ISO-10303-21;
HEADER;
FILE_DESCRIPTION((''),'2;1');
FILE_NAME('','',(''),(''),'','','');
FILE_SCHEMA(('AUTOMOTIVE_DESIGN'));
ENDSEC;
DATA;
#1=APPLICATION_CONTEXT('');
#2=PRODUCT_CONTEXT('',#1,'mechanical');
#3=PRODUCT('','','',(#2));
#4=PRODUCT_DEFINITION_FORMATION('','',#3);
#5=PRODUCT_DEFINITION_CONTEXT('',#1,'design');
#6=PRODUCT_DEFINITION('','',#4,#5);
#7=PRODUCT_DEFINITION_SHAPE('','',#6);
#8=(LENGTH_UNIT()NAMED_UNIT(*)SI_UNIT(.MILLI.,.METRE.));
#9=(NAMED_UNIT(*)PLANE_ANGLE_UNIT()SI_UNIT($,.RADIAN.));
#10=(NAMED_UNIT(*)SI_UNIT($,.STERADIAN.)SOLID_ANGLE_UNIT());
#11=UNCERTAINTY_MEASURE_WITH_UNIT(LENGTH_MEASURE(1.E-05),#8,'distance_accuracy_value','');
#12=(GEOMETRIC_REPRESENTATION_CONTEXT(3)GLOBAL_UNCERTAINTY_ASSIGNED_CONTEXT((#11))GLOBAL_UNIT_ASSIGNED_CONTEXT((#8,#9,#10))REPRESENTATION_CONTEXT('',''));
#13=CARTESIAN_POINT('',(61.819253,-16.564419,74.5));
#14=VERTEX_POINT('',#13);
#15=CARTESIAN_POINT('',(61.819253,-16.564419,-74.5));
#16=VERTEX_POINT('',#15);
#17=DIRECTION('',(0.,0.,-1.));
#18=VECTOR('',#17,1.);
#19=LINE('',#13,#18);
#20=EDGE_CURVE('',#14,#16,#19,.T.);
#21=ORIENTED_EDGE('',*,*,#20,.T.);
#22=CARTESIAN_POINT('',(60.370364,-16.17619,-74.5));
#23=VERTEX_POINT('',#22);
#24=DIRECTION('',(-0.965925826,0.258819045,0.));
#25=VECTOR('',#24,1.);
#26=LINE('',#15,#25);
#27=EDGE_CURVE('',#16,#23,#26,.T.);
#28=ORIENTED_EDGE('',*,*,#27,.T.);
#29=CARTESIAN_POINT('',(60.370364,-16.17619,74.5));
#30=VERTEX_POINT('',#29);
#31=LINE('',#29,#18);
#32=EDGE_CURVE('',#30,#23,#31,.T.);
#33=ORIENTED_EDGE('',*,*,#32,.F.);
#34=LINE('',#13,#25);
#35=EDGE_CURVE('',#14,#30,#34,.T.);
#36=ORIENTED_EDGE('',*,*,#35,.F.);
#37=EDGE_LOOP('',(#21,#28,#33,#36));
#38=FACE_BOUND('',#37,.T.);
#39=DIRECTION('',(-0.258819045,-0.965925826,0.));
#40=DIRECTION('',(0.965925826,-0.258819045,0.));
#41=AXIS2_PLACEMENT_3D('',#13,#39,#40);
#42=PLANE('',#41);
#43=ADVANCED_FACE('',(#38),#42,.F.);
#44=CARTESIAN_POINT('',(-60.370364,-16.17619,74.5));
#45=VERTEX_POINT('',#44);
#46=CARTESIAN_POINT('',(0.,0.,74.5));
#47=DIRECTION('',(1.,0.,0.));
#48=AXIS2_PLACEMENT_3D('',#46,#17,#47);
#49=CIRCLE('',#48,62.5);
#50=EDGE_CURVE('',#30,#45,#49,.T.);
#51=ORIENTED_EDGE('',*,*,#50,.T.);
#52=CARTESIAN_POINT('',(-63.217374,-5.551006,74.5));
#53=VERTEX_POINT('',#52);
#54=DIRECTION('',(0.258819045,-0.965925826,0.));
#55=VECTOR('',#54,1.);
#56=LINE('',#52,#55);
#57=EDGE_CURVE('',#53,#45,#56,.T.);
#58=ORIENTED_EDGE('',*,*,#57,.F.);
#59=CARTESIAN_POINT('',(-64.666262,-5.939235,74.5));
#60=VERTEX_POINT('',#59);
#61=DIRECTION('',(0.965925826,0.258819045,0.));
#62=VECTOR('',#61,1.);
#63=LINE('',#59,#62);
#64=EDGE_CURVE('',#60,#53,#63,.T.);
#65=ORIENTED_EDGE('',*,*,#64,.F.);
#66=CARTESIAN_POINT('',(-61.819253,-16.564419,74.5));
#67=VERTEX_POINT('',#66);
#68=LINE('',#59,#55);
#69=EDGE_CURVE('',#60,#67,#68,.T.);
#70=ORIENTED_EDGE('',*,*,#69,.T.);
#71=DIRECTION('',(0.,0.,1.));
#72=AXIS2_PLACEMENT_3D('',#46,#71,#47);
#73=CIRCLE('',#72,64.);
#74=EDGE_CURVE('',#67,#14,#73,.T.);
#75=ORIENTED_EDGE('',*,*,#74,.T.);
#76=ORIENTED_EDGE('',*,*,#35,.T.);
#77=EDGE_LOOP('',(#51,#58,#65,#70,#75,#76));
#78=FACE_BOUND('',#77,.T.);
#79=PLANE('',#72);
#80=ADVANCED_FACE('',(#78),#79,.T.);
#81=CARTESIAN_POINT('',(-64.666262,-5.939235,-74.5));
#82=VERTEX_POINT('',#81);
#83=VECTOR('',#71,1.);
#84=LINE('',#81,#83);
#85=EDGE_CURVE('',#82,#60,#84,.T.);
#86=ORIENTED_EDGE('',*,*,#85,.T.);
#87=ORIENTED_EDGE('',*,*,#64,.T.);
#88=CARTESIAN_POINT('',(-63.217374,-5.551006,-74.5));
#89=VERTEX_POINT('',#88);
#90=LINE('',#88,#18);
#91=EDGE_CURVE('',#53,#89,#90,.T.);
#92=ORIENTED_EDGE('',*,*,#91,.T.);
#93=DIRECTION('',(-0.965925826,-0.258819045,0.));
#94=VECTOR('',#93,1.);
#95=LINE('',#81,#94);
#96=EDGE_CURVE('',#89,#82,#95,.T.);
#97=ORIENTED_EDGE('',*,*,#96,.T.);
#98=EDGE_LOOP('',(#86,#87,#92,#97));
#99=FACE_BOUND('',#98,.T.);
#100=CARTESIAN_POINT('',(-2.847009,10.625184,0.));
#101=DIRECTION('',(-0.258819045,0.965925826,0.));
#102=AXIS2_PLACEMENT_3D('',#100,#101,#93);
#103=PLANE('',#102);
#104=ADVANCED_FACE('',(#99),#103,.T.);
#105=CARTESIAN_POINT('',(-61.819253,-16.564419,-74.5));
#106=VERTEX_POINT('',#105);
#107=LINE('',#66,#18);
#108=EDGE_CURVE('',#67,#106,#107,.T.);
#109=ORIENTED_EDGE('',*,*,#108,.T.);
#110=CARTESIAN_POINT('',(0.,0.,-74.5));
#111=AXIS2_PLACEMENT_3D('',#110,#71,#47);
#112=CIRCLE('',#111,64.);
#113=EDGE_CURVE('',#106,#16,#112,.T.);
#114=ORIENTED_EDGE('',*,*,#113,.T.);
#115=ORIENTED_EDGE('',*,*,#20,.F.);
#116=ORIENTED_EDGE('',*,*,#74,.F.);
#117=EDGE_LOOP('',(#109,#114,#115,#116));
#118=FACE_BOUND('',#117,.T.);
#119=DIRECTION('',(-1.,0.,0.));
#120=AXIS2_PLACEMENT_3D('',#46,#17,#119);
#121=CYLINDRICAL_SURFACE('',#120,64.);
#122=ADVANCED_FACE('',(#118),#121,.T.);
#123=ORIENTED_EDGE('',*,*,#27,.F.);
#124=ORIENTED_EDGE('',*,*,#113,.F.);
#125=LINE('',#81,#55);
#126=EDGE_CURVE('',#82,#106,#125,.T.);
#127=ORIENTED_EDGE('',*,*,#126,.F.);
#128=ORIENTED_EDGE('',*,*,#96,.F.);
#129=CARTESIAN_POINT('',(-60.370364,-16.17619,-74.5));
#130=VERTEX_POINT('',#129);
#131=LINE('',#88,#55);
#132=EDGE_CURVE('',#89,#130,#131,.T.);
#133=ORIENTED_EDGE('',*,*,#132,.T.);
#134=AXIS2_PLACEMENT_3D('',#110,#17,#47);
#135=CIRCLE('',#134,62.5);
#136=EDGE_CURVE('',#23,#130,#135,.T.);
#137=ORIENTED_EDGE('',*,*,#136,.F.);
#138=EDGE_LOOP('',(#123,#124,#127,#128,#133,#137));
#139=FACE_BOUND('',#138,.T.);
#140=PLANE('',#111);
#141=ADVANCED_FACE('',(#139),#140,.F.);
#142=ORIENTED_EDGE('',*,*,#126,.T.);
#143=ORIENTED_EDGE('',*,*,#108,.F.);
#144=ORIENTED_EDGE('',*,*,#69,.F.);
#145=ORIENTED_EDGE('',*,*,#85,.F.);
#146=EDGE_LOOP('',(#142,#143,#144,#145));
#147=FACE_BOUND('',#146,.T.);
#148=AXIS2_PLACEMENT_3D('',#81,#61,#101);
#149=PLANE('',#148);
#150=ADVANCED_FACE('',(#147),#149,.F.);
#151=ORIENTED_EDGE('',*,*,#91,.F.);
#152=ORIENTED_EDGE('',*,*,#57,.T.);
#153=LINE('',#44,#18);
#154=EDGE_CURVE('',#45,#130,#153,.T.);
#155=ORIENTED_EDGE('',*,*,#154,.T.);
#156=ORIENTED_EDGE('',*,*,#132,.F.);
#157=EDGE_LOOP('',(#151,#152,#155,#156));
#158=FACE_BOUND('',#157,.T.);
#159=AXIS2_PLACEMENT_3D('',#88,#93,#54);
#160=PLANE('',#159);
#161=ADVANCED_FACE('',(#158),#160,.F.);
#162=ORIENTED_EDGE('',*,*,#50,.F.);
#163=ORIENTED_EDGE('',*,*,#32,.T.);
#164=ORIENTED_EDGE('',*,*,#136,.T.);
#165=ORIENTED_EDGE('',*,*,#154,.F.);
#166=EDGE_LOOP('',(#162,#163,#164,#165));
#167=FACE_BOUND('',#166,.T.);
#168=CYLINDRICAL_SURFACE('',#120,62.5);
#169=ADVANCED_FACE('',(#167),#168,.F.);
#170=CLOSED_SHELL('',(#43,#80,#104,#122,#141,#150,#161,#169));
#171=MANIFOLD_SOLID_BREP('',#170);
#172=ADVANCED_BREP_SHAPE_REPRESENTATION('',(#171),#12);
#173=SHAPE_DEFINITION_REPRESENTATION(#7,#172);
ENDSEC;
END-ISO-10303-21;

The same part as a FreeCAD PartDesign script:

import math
import FreeCAD as App
import Part
import Sketcher

V = App.Vector
Q = App.Units.Quantity

doc = App.newDocument("Part")
body = doc.addObject("PartDesign::Body", "Body")

# Sketch on XY plane
sketch1 = body.newObject("Sketcher::SketchObject", "Sketch")
sketch1.AttachmentSupport = (doc.getObject("XY_Plane"), [""])
sketch1.MapMode = "FlatFace"
sketch1.addGeometry(Part.LineSegment(V(61.819253, -16.564419, 0), V(60.370364, -16.17619, 0)), False)
sketch1.addGeometry(Part.ArcOfCircle(Part.Circle(V(0, 0, 0), V(0, 0, 1), 62.5), math.radians(-165), math.radians(-15)), False)
sketch1.addGeometry(Part.LineSegment(V(-60.370364, -16.17619, 0), V(-61.819253, -16.564419, 0)), False)
sketch1.addGeometry(Part.ArcOfCircle(Part.Circle(V(0, 0, 0), V(0, 0, 1), 64), math.radians(-165), math.radians(-15)), False)
sketch1.addConstraint(Sketcher.Constraint("Coincident", 0, 2, 1, 2))
sketch1.addConstraint(Sketcher.Constraint("Coincident", 1, 1, 2, 1))
sketch1.addConstraint(Sketcher.Constraint("Coincident", 2, 2, 3, 1))
sketch1.addConstraint(Sketcher.Constraint("Coincident", 3, 2, 0, 1))
sketch1.addConstraint(Sketcher.Constraint("Coincident", 1, 3, -1, 1))
sketch1.addConstraint(Sketcher.Constraint("Coincident", 3, 3, -1, 1))
sketch1.addConstraint(Sketcher.Constraint("Horizontal", 0, 2, 1, 1))
sketch1.addConstraint(Sketcher.Constraint("Horizontal", 2, 2, 3, 2))
sketch1.addConstraint(Sketcher.Constraint("Radius", 3, 64.0))
sketch1.addConstraint(Sketcher.Constraint("Radius", 1, 62.5))
sketch1.addConstraint(Sketcher.Constraint("Angle", 0, Q("165 deg")))
sketch1.addConstraint(Sketcher.Constraint("DistanceY", 0, 2, -1, 1, 16.17619))
pad1 = body.newObject("PartDesign::Pad", "Pad")
pad1.Profile = sketch1
pad1.Length = 149
pad1.Midplane = True

# Sketch on an angled plane
sketch2 = body.newObject("Sketcher::SketchObject", "Sketch001")
sketch2.Placement = App.Placement(V(0, 0, 0), App.Rotation(V(0.965925826, 0.258819045, 0), V(0, 0, -0.999999999), V(-0.258819045, 0.965925826, 0), "ZXY"))
sketch2.addGeometry(Part.LineSegment(V(-64, 74.5, 0), V(-64, -74.5, 0)), False)
sketch2.addGeometry(Part.LineSegment(V(-64, -74.5, 0), V(-62.5, -74.5, 0)), False)
sketch2.addGeometry(Part.LineSegment(V(-62.5, -74.5, 0), V(-62.5, 74.5, 0)), False)
sketch2.addGeometry(Part.LineSegment(V(-62.5, 74.5, 0), V(-64, 74.5, 0)), False)
sketch2.addConstraint(Sketcher.Constraint("Coincident", 0, 2, 1, 1))
sketch2.addConstraint(Sketcher.Constraint("Coincident", 1, 2, 2, 1))
sketch2.addConstraint(Sketcher.Constraint("Coincident", 2, 2, 3, 1))
sketch2.addConstraint(Sketcher.Constraint("Coincident", 3, 2, 0, 1))
sketch2.addConstraint(Sketcher.Constraint("Vertical", 0))
sketch2.addConstraint(Sketcher.Constraint("Horizontal", 1))
sketch2.addConstraint(Sketcher.Constraint("Vertical", 2))
sketch2.addConstraint(Sketcher.Constraint("Horizontal", 3))
sketch2.addConstraint(Sketcher.Constraint("DistanceY", 0, 2, 0, 1, 149.0))
sketch2.addConstraint(Sketcher.Constraint("DistanceX", 1, 1, 1, 2, 1.5))
sketch2.addConstraint(Sketcher.Constraint("DistanceX", 0, 2, -1, 1, 64.0))
sketch2.addConstraint(Sketcher.Constraint("DistanceY", 0, 2, -1, 1, 74.5))
pad2 = body.newObject("PartDesign::Pad", "Pad001")
pad2.Profile = sketch2
pad2.Length = 11

doc.recompute()
